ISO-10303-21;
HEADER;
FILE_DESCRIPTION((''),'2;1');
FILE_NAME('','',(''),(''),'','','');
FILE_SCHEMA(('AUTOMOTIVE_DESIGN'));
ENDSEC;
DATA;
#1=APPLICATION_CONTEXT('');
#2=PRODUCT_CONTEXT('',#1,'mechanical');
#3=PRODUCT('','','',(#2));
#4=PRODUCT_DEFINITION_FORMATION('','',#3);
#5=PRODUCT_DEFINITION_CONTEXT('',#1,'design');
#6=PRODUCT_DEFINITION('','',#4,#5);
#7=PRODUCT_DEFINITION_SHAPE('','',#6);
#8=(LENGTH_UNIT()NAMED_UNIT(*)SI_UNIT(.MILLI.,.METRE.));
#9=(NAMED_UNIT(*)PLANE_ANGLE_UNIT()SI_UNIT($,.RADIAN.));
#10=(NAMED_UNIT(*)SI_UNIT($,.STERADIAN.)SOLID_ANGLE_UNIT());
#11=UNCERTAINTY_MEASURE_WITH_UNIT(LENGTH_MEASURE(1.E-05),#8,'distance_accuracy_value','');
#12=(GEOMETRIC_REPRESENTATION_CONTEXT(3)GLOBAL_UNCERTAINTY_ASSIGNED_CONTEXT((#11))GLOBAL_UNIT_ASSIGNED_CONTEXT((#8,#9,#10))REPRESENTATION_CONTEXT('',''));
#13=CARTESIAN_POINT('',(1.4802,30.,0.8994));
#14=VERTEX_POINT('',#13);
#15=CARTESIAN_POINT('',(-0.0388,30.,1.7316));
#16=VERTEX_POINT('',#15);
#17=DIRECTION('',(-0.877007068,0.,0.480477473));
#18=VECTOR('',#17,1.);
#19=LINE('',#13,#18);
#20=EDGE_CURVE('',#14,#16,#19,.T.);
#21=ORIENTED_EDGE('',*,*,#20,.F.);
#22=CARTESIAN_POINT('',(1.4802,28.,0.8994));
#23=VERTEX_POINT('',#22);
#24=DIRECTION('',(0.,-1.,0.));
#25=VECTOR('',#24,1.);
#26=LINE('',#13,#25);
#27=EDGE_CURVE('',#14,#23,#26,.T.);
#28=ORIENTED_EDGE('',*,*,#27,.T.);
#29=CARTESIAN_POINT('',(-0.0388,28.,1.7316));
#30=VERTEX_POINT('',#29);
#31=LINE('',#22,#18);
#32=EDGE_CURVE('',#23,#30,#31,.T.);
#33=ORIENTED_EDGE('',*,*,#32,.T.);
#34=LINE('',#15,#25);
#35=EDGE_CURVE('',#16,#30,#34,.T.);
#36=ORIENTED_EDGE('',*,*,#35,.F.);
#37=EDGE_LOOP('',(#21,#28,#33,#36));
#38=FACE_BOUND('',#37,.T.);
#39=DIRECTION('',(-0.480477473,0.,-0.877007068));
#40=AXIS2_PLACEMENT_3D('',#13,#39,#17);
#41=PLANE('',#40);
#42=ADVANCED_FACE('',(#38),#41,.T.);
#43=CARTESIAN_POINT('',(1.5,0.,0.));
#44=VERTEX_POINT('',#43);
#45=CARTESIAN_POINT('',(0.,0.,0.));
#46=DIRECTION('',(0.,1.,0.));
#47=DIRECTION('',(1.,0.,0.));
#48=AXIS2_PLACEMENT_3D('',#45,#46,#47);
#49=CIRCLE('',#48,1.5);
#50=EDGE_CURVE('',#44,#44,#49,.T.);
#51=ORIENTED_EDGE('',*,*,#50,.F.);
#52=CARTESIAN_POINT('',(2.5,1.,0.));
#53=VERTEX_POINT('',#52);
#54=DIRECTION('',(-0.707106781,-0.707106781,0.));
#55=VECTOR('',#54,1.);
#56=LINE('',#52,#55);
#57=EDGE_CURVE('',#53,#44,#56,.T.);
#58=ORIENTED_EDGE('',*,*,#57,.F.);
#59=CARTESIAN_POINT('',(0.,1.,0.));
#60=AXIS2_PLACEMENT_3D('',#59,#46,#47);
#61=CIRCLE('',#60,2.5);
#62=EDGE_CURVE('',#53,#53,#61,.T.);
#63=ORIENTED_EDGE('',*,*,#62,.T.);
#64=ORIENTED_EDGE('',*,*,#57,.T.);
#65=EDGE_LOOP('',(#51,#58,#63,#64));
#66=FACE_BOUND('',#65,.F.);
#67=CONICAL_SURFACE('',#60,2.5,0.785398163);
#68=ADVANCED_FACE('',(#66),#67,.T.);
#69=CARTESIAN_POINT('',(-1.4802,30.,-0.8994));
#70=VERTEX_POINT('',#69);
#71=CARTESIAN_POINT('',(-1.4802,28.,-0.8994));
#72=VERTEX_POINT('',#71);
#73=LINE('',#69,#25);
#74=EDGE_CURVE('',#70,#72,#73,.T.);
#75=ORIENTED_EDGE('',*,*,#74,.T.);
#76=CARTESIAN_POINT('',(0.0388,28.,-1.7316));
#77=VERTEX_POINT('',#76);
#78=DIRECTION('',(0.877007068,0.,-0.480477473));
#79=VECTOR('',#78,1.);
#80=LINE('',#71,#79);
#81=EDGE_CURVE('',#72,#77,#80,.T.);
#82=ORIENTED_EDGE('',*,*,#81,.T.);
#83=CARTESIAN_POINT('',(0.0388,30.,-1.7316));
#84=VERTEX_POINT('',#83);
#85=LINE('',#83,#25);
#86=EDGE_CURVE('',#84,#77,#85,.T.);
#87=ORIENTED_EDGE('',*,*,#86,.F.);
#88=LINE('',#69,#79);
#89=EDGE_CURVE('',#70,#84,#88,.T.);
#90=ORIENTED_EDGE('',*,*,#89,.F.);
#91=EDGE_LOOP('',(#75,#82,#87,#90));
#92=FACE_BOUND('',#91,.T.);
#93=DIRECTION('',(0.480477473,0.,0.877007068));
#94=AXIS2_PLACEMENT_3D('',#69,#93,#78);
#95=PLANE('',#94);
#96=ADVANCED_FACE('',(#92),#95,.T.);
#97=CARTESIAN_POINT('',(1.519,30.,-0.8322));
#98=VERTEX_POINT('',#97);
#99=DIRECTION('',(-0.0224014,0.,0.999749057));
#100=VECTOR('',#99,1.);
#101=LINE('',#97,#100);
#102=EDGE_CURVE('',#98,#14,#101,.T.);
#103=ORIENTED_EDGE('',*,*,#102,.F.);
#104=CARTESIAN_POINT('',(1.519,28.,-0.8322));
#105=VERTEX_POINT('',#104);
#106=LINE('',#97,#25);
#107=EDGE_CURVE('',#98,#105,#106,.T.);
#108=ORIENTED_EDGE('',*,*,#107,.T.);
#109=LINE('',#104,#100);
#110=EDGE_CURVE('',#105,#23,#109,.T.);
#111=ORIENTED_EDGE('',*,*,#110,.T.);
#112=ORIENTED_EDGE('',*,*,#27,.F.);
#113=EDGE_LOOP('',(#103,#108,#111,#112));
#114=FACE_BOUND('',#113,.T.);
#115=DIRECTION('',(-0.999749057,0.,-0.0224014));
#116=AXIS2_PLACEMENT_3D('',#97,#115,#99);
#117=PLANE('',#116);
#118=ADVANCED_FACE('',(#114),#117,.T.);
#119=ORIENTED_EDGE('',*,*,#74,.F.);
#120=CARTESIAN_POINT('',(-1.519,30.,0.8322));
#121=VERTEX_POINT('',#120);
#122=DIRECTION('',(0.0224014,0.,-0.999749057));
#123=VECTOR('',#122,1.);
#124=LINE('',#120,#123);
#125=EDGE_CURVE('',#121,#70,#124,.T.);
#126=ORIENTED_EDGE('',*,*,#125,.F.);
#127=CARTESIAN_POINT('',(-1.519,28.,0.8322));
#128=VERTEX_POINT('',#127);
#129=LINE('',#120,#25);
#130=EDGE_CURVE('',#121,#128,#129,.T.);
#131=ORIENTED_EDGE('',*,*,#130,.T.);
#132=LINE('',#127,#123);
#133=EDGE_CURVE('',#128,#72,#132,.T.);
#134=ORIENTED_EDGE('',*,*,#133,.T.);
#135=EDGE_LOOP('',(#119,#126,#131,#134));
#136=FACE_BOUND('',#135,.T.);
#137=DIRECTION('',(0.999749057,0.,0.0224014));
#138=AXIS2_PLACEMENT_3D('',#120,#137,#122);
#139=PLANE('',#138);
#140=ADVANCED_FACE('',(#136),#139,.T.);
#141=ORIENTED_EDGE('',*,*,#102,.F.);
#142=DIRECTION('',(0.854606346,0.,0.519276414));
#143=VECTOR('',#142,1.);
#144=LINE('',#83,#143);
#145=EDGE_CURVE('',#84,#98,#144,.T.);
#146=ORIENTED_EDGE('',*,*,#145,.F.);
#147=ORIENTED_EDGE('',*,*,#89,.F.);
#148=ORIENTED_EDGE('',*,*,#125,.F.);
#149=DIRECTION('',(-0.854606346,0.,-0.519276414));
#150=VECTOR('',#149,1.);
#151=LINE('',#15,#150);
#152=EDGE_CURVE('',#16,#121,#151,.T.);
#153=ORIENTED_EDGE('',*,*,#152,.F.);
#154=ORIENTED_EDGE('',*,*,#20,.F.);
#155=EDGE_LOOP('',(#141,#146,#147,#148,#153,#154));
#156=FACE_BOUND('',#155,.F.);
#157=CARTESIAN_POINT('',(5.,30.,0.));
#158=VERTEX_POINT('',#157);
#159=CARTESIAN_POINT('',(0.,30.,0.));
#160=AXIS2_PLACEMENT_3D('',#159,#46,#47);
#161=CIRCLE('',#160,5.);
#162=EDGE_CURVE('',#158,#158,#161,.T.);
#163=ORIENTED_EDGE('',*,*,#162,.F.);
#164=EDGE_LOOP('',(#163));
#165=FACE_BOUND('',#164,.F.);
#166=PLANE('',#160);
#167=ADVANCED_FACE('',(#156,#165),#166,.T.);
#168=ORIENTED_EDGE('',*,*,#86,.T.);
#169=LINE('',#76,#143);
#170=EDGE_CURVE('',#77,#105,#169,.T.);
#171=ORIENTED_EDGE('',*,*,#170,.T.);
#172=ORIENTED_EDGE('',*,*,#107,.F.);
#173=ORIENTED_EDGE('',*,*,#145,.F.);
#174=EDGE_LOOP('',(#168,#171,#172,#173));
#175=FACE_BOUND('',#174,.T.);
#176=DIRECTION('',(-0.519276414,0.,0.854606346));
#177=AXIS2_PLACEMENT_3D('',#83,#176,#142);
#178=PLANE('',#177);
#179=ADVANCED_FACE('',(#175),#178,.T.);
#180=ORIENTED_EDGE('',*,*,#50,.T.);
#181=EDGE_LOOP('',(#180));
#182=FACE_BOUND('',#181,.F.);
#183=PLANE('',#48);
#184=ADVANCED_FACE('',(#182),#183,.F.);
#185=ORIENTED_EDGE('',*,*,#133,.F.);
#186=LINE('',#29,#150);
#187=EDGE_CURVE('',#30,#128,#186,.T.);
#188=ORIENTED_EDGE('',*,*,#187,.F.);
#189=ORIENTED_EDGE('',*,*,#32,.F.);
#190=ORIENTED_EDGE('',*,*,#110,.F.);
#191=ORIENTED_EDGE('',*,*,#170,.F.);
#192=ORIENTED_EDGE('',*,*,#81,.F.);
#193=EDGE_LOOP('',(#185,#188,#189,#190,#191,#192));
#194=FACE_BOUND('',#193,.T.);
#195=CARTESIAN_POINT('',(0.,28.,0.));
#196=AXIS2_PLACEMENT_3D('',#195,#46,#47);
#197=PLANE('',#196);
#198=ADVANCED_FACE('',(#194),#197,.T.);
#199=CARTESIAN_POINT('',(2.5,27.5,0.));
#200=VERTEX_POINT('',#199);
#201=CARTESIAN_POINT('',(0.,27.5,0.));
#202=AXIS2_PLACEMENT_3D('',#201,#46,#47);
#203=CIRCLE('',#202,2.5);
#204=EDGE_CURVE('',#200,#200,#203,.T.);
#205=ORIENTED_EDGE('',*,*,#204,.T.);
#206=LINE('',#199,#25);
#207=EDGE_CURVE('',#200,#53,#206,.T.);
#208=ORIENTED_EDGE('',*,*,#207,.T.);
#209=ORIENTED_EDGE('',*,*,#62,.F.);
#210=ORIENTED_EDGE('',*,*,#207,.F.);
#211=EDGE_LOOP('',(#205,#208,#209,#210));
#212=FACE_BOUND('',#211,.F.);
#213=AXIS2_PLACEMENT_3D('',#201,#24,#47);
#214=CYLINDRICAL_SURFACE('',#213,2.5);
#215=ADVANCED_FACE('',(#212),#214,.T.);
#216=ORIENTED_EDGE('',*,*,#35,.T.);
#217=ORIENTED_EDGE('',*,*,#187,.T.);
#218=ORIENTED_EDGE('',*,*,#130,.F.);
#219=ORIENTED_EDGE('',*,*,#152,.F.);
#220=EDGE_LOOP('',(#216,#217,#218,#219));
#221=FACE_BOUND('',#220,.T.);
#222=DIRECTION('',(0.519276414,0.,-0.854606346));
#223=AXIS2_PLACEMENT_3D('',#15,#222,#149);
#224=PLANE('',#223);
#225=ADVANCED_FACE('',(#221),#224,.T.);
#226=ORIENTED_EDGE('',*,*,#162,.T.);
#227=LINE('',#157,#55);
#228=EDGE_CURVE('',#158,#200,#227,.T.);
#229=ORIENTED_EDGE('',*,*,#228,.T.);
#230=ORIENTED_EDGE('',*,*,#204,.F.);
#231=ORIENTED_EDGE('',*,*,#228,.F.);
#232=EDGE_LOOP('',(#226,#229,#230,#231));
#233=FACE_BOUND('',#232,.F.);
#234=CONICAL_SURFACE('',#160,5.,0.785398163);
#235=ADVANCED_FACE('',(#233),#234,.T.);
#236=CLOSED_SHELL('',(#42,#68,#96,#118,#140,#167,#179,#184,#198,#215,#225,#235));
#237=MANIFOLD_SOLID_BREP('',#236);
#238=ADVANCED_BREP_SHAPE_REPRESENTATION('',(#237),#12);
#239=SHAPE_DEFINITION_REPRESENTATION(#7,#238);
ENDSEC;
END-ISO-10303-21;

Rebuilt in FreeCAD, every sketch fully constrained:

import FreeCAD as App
import Part
import Sketcher

V = App.Vector

doc = App.newDocument("Part")
params = doc.addObject("Spreadsheet::Sheet", "Params")
for row, (alias, value) in enumerate([
    ("sketch1_width", "5 mm"),
    ("sketch1_height", "30 mm"),
    ("revolution_angle", "360 deg"),
    ("pocket1_length", "2 mm"),
], start=1):
    params.set(f"A{row}", alias)
    params.set(f"B{row}", "=" + value)
    params.setAlias(f"B{row}", alias)

body = doc.addObject("PartDesign::Body", "Body")

sketch1 = doc.addObject("Sketcher::SketchObject", "Sketch")
body.addObject(sketch1)
sketch1.AttachmentSupport = (doc.XY_Plane, [""])
sketch1.MapMode = "FlatFace"
sketch1.addGeometry([
    Part.LineSegment(V(0, 30, 0), V(0, 0, 0)),
    Part.LineSegment(V(0, 0, 0), V(1.5, 0, 0)),
    Part.LineSegment(V(1.5, 0, 0), V(2.5, 1, 0)),
    Part.LineSegment(V(2.5, 1, 0), V(2.5, 27.5, 0)),
    Part.LineSegment(V(2.5, 27.5, 0), V(5, 30, 0)),
    Part.LineSegment(V(5, 30, 0), V(0, 30, 0)),
], False)
sketch1.addConstraint([
    Sketcher.Constraint("Coincident", 0, 2, 1, 1),
    Sketcher.Constraint("Coincident", 1, 2, 2, 1),
    Sketcher.Constraint("Coincident", 2, 2, 3, 1),
    Sketcher.Constraint("Coincident", 3, 2, 4, 1),
    Sketcher.Constraint("Coincident", 4, 2, 5, 1),
    Sketcher.Constraint("Coincident", 5, 2, 0, 1),
    Sketcher.Constraint("Vertical", 0),
    Sketcher.Constraint("Horizontal", 1),
    Sketcher.Constraint("Vertical", 3),
    Sketcher.Constraint("Horizontal", 5),
    Sketcher.Constraint("Coincident", 0, 2, -1, 1),
    Sketcher.Constraint("Parallel", 2, 4),
    Sketcher.Constraint("DistanceX", 5, 2, 5, 1, 5.0),
    Sketcher.Constraint("DistanceY", 0, 2, 0, 1, 30.0),
    Sketcher.Constraint("DistanceY", -1, 1, 2, 2, 1.0),
    Sketcher.Constraint("DistanceX", 1, 2, 2, 2, 1.0),
    Sketcher.Constraint("DistanceX", -1, 1, 2, 2, 2.5),
])
sketch1.setExpression("Constraints[12]", "Params.sketch1_width")
sketch1.setExpression("Constraints[13]", "Params.sketch1_height")
revolution = doc.addObject("PartDesign::Revolution", "Revolution")
body.addObject(revolution)
revolution.Profile = sketch1
revolution.ReferenceAxis = (sketch1, ["V_Axis"])
revolution.setExpression("Angle", "Params.revolution_angle")

sketch2 = doc.addObject("Sketcher::SketchObject", "Sketch001")
body.addObject(sketch2)
sketch2.AttachmentSupport = (doc.XZ_Plane, [""])
sketch2.MapMode = "FlatFace"
sketch2.AttachmentOffset = App.Placement(V(0, 0, -30), App.Rotation())
sketch2.addGeometry([
    Part.LineSegment(V(-0.0388, 1.7316, 0), V(1.4802, 0.8994, 0)),
    Part.LineSegment(V(1.4802, 0.8994, 0), V(1.519, -0.8322, 0)),
    Part.LineSegment(V(1.519, -0.8322, 0), V(0.0388, -1.7316, 0)),
    Part.LineSegment(V(0.0388, -1.7316, 0), V(-1.4802, -0.8994, 0)),
    Part.LineSegment(V(-1.4802, -0.8994, 0), V(-1.519, 0.8322, 0)),
    Part.LineSegment(V(-1.519, 0.8322, 0), V(-0.0388, 1.7316, 0)),
], False)
sketch2.addConstraint([
    Sketcher.Constraint("Coincident", 0, 2, 1, 1),
    Sketcher.Constraint("Coincident", 1, 2, 2, 1),
    Sketcher.Constraint("Coincident", 2, 2, 3, 1),
    Sketcher.Constraint("Coincident", 3, 2, 4, 1),
    Sketcher.Constraint("Coincident", 4, 2, 5, 1),
    Sketcher.Constraint("Coincident", 5, 2, 0, 1),
    Sketcher.Constraint("Symmetric", 0, 2, 3, 2, -1, 1),
    Sketcher.Constraint("Symmetric", 1, 2, 4, 2, -1, 1),
    Sketcher.Constraint("Symmetric", 2, 2, 5, 2, -1, 1),
    Sketcher.Constraint("Equal", 0, 1),
    Sketcher.Constraint("Equal", 1, 2),
    Sketcher.Constraint("Distance", 0, 1.732),
    Sketcher.Constraint("DistanceX", -1, 1, 1, 2, 1.519),
    Sketcher.Constraint("DistanceY", 2, 2, 0, 2, 2.631),
    Sketcher.Constraint("DistanceX", 3, 2, 2, 2, 1.519),
])
pocket1 = doc.addObject("PartDesign::Pocket", "Pocket")
body.addObject(pocket1)
pocket1.Profile = sketch2
pocket1.setExpression("Length", "Params.pocket1_length")
pocket1.Reversed = True

doc.recompute()
